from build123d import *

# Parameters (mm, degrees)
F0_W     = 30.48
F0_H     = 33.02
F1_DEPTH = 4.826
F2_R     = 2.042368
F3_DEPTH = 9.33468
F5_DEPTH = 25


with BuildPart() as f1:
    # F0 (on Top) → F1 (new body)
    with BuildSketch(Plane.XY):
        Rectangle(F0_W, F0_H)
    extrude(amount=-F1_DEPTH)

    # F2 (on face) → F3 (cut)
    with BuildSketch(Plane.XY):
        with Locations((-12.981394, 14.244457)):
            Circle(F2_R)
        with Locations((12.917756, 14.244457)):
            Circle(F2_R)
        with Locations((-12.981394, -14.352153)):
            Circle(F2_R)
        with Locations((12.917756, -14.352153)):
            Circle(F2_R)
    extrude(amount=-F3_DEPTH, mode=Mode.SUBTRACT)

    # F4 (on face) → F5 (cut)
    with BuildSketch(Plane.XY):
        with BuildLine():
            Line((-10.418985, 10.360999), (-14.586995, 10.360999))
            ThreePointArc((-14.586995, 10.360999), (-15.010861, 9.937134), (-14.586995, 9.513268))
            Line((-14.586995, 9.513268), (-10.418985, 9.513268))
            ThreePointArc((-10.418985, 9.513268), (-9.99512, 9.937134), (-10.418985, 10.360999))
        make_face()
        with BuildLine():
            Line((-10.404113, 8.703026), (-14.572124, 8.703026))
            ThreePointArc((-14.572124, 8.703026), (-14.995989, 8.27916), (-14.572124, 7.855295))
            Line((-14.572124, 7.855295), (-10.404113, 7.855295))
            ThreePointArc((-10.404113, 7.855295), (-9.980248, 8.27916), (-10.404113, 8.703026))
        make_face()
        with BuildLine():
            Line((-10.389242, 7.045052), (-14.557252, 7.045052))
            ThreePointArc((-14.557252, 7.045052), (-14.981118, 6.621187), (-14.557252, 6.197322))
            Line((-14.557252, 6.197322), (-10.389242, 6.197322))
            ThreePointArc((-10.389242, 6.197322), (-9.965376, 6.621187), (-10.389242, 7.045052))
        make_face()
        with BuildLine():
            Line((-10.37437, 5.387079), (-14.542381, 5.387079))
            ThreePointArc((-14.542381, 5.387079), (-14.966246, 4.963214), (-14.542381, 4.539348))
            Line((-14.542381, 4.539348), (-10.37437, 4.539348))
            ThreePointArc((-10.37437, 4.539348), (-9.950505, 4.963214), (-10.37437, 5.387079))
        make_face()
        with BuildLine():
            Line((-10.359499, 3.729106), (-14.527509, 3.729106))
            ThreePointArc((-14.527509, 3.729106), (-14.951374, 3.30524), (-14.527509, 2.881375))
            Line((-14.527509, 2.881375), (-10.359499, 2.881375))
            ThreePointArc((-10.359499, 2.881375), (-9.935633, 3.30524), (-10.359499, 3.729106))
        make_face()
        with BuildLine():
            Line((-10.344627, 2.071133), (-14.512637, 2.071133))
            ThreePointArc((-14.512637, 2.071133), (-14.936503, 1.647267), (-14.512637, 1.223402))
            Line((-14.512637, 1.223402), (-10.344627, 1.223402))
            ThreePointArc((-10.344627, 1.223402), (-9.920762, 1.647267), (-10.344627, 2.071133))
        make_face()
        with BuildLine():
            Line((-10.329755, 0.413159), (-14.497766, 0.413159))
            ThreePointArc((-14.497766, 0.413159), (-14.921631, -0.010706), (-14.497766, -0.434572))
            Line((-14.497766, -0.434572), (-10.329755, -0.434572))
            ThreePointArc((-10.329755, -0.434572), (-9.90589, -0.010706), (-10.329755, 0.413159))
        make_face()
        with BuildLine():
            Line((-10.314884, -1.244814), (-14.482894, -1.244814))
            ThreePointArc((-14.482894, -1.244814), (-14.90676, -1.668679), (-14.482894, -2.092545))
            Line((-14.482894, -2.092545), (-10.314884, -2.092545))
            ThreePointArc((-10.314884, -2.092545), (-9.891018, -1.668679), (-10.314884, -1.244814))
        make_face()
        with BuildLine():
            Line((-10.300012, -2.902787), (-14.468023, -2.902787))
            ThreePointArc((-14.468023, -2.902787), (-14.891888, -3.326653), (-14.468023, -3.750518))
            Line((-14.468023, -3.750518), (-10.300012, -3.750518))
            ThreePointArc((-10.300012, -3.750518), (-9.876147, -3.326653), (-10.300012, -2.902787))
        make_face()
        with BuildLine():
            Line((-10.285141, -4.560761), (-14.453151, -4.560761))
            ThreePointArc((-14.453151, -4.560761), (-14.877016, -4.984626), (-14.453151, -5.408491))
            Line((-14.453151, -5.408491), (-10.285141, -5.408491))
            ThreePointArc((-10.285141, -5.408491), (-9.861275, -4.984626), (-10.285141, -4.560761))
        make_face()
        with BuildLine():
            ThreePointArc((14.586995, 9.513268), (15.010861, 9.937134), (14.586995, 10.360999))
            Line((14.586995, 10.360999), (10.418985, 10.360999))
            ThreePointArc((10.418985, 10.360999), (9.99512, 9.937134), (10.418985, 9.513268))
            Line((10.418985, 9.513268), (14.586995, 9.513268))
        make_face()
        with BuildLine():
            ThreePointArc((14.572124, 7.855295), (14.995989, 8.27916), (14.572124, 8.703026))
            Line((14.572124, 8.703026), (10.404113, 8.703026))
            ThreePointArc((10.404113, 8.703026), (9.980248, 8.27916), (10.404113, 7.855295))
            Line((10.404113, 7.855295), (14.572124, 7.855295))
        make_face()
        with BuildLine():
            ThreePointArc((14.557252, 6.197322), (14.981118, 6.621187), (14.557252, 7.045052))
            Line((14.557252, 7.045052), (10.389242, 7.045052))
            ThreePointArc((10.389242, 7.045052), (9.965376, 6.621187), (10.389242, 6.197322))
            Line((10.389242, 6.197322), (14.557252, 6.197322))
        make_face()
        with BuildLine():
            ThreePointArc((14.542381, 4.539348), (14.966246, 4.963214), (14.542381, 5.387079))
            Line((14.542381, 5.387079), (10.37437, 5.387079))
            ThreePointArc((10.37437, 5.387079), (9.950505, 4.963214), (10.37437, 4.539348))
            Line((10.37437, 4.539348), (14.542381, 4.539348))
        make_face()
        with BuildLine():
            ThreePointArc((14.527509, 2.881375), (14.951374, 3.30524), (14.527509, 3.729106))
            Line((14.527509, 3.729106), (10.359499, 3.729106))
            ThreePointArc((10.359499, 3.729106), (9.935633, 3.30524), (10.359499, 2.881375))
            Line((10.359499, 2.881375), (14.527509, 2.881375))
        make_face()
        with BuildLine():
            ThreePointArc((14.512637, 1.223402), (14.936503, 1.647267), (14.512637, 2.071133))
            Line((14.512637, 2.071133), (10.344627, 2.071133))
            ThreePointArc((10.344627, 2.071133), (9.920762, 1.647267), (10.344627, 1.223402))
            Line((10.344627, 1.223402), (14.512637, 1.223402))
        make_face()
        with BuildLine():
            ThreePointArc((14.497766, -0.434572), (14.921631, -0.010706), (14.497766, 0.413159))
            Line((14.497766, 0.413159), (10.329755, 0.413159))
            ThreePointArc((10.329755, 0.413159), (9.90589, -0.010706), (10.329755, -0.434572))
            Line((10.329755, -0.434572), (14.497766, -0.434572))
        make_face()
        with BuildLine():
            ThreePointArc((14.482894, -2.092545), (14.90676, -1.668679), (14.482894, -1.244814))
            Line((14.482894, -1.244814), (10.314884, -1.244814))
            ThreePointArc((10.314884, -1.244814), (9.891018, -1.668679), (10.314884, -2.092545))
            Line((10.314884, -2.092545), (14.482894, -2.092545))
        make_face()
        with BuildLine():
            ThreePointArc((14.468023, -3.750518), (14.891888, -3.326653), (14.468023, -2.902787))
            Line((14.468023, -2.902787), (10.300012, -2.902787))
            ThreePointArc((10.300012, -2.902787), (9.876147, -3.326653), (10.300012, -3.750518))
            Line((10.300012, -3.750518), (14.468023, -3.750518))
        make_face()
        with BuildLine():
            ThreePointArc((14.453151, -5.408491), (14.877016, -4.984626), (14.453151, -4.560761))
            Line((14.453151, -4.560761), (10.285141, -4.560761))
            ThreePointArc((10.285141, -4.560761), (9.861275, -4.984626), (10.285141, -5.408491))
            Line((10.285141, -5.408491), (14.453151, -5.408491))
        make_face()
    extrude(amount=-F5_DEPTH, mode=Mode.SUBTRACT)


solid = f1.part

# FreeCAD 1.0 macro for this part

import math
import FreeCAD as App
import Part
import Sketcher
from FreeCAD import Vector
Q = App.Units.Quantity


def add_polygon(sketch, points):
    """Adds a closed chain of lines whose ends are joined by coincident constraints."""
    first, n = sketch.GeometryCount, len(points)
    for a, b in zip(points, points[1:] + points[:1]):
        sketch.addGeometry(Part.LineSegment(App.Vector(*a, 0), App.Vector(*b, 0)), False)
    for i in range(n):
        sketch.addConstraint(Sketcher.Constraint("Coincident", first + i, 2, first + (i + 1) % n, 1))

doc = App.newDocument("Part")
body = doc.addObject("PartDesign::Body", "Body")

sketch1 = body.newObject("Sketcher::SketchObject", "Sketch")
sketch1.AttachmentSupport = (doc.getObject("XY_Plane"), [""])
sketch1.MapMode = "FlatFace"
add_polygon(sketch1, [(-15, 17), (-15, -17), (15, -17), (15, 17)])
sketch1.addConstraint(Sketcher.Constraint("Vertical", 0))
sketch1.addConstraint(Sketcher.Constraint("Horizontal", 1))
sketch1.addConstraint(Sketcher.Constraint("Vertical", 2))
sketch1.addConstraint(Sketcher.Constraint("Horizontal", 3))
sketch1.addConstraint(Sketcher.Constraint("Symmetric", 0, 2, 2, 2, -1, 1))
sketch1.addConstraint(Sketcher.Constraint("DistanceX", 1, 1, 1, 2, Q("1.2 in")))
sketch1.addConstraint(Sketcher.Constraint("DistanceY", 0, 2, 0, 1, Q("1.3 in")))
pad1 = body.newObject("PartDesign::Pad", "Pad")
pad1.Profile = sketch1
pad1.Length = Q("0.19 in")
pad1.Reversed = True

sketch2 = body.newObject("Sketcher::SketchObject", "Sketch001")
sketch2.AttachmentSupport = (doc.getObject("XY_Plane"), [""])
sketch2.MapMode = "FlatFace"
sketch2.addGeometry(Part.Circle(Vector(-13, 14.2, 0), Vector(0, 0, 1), 2), False)
sketch2.addGeometry(Part.Circle(Vector(12.9, 14.2, 0), Vector(0, 0, 1), 2), False)
sketch2.addGeometry(Part.Circle(Vector(-13, -14.4, 0), Vector(0, 0, 1), 2), False)
sketch2.addGeometry(Part.Circle(Vector(12.9, -14.4, 0), Vector(0, 0, 1), 2), False)
sketch2.addConstraint(Sketcher.Constraint("Equal", 0, 1))
sketch2.addConstraint(Sketcher.Constraint("Equal", 1, 2))
sketch2.addConstraint(Sketcher.Constraint("Equal", 2, 3))
sketch2.addConstraint(Sketcher.Constraint("Horizontal", 0, 3, 1, 3))
sketch2.addConstraint(Sketcher.Constraint("Horizontal", 2, 3, 3, 3))
sketch2.addConstraint(Sketcher.Constraint("Vertical", 0, 3, 2, 3))
sketch2.addConstraint(Sketcher.Constraint("Vertical", 1, 3, 3, 3))
sketch2.addConstraint(Sketcher.Constraint("Diameter", 0, 4.084736))
sketch2.addConstraint(Sketcher.Constraint("DistanceX", 0, 3, 1, 3, 25.89915))
sketch2.addConstraint(Sketcher.Constraint("DistanceY", 2, 3, 0, 3, 28.59661))
sketch2.addConstraint(Sketcher.Constraint("DistanceX", 0, 3, -1, 1, 12.981394))
sketch2.addConstraint(Sketcher.Constraint("DistanceY", -1, 1, 0, 3, 14.244457))
pocket1 = body.newObject("PartDesign::Pocket", "Pocket")
pocket1.Profile = sketch2
pocket1.Length = 9.33468

sketch3 = body.newObject("Sketcher::SketchObject", "Sketch002")
sketch3.AttachmentSupport = (doc.getObject("XY_Plane"), [""])
sketch3.MapMode = "FlatFace"
sketch3.addGeometry(Part.LineSegment(Vector(-10.42, 10.36, 0), Vector(-14.59, 10.36, 0)), False)
sketch3.addGeometry(Part.ArcOfCircle(Part.Circle(Vector(-14.59, 9.94, 0), Vector(0, 0, 1), 0.42), math.radians(90), math.radians(270)), False)
sketch3.addGeometry(Part.LineSegment(Vector(-14.59, 9.51, 0), Vector(-10.42, 9.51, 0)), False)
sketch3.addGeometry(Part.ArcOfCircle(Part.Circle(Vector(-10.42, 9.94, 0), Vector(0, 0, 1), 0.42), math.radians(-90), math.radians(90)), False)
sketch3.addGeometry(Part.LineSegment(Vector(-10.4, 8.7, 0), Vector(-14.57, 8.7, 0)), False)
sketch3.addGeometry(Part.ArcOfCircle(Part.Circle(Vector(-14.57, 8.28, 0), Vector(0, 0, 1), 0.42), math.radians(90), math.radians(270)), False)
sketch3.addGeometry(Part.LineSegment(Vector(-14.57, 7.86, 0), Vector(-10.4, 7.86, 0)), False)
sketch3.addGeometry(Part.ArcOfCircle(Part.Circle(Vector(-10.4, 8.28, 0), Vector(0, 0, 1), 0.42), math.radians(-90), math.radians(90)), False)
sketch3.addGeometry(Part.LineSegment(Vector(-10.39, 7.05, 0), Vector(-14.56, 7.05, 0)), False)
sketch3.addGeometry(Part.ArcOfCircle(Part.Circle(Vector(-14.56, 6.62, 0), Vector(0, 0, 1), 0.42), math.radians(90), math.radians(270)), False)
sketch3.addGeometry(Part.LineSegment(Vector(-14.56, 6.2, 0), Vector(-10.39, 6.2, 0)), False)
sketch3.addGeometry(Part.ArcOfCircle(Part.Circle(Vector(-10.39, 6.62, 0), Vector(0, 0, 1), 0.42), math.radians(-90), math.radians(90)), False)
sketch3.addGeometry(Part.LineSegment(Vector(-10.37, 5.39, 0), Vector(-14.54, 5.39, 0)), False)
sketch3.addGeometry(Part.ArcOfCircle(Part.Circle(Vector(-14.54, 4.96, 0), Vector(0, 0, 1), 0.42), math.radians(90), math.radians(270)), False)
sketch3.addGeometry(Part.LineSegment(Vector(-14.54, 4.54, 0), Vector(-10.37, 4.54, 0)), False)
sketch3.addGeometry(Part.ArcOfCircle(Part.Circle(Vector(-10.37, 4.96, 0), Vector(0, 0, 1), 0.42), math.radians(-90), math.radians(90)), False)
sketch3.addGeometry(Part.LineSegment(Vector(-10.36, 3.73, 0), Vector(-14.53, 3.73, 0)), False)
sketch3.addGeometry(Part.ArcOfCircle(Part.Circle(Vector(-14.53, 3.31, 0), Vector(0, 0, 1), 0.42), math.radians(90), math.radians(270)), False)
sketch3.addGeometry(Part.LineSegment(Vector(-14.53, 2.88, 0), Vector(-10.36, 2.88, 0)), False)
sketch3.addGeometry(Part.ArcOfCircle(Part.Circle(Vector(-10.36, 3.31, 0), Vector(0, 0, 1), 0.42), math.radians(-90), math.radians(90)), False)
sketch3.addGeometry(Part.LineSegment(Vector(-10.34, 2.07, 0), Vector(-14.51, 2.07, 0)), False)
sketch3.addGeometry(Part.ArcOfCircle(Part.Circle(Vector(-14.51, 1.65, 0), Vector(0, 0, 1), 0.42), math.radians(90), math.radians(270)), False)
sketch3.addGeometry(Part.LineSegment(Vector(-14.51, 1.22, 0), Vector(-10.34, 1.22, 0)), False)
sketch3.addGeometry(Part.ArcOfCircle(Part.Circle(Vector(-10.34, 1.65, 0), Vector(0, 0, 1), 0.42), math.radians(-90), math.radians(90)), False)
sketch3.addGeometry(Part.LineSegment(Vector(-10.33, 0.41, 0), Vector(-14.5, 0.41, 0)), False)
sketch3.addGeometry(Part.ArcOfCircle(Part.Circle(Vector(-14.5, -0.01, 0), Vector(0, 0, 1), 0.42), math.radians(90), math.radians(270)), False)
sketch3.addGeometry(Part.LineSegment(Vector(-14.5, -0.43, 0), Vector(-10.33, -0.43, 0)), False)
sketch3.addGeometry(Part.ArcOfCircle(Part.Circle(Vector(-10.33, -0.01, 0), Vector(0, 0, 1), 0.42), math.radians(-90), math.radians(90)), False)
sketch3.addGeometry(Part.LineSegment(Vector(-10.31, -1.24, 0), Vector(-14.48, -1.24, 0)), False)
sketch3.addGeometry(Part.ArcOfCircle(Part.Circle(Vector(-14.48, -1.67, 0), Vector(0, 0, 1), 0.42), math.radians(90), math.radians(270)), False)
sketch3.addGeometry(Part.LineSegment(Vector(-14.48, -2.09, 0), Vector(-10.31, -2.09, 0)), False)
sketch3.addGeometry(Part.ArcOfCircle(Part.Circle(Vector(-10.31, -1.67, 0), Vector(0, 0, 1), 0.42), math.radians(-90), math.radians(90)), False)
sketch3.addGeometry(Part.LineSegment(Vector(-10.3, -2.9, 0), Vector(-14.47, -2.9, 0)), False)
sketch3.addGeometry(Part.ArcOfCircle(Part.Circle(Vector(-14.47, -3.33, 0), Vector(0, 0, 1), 0.42), math.radians(90), math.radians(270)), False)
sketch3.addGeometry(Part.LineSegment(Vector(-14.47, -3.75, 0), Vector(-10.3, -3.75, 0)), False)
sketch3.addGeometry(Part.ArcOfCircle(Part.Circle(Vector(-10.3, -3.33, 0), Vector(0, 0, 1), 0.42), math.radians(-90), math.radians(90)), False)
sketch3.addGeometry(Part.LineSegment(Vector(-10.29, -4.56, 0), Vector(-14.45, -4.56, 0)), False)
sketch3.addGeometry(Part.ArcOfCircle(Part.Circle(Vector(-14.45, -4.98, 0), Vector(0, 0, 1), 0.42), math.radians(90), math.radians(270)), False)
sketch3.addGeometry(Part.LineSegment(Vector(-14.45, -5.41, 0), Vector(-10.29, -5.41, 0)), False)
sketch3.addGeometry(Part.ArcOfCircle(Part.Circle(Vector(-10.29, -4.98, 0), Vector(0, 0, 1), 0.42), math.radians(-90), math.radians(90)), False)
sketch3.addGeometry(Part.ArcOfCircle(Part.Circle(Vector(14.59, 9.94, 0), Vector(0, 0, 1), 0.42), math.radians(-90), math.radians(90)), False)
sketch3.addGeometry(Part.LineSegment(Vector(14.59, 10.36, 0), Vector(10.42, 10.36, 0)), False)
sketch3.addGeometry(Part.ArcOfCircle(Part.Circle(Vector(10.42, 9.94, 0), Vector(0, 0, 1), 0.42), math.radians(90), math.radians(270)), False)
sketch3.addGeometry(Part.LineSegment(Vector(10.42, 9.51, 0), Vector(14.59, 9.51, 0)), False)
sketch3.addGeometry(Part.ArcOfCircle(Part.Circle(Vector(14.57, 8.28, 0), Vector(0, 0, 1), 0.42), math.radians(-90), math.radians(90)), False)
sketch3.addGeometry(Part.LineSegment(Vector(14.57, 8.7, 0), Vector(10.4, 8.7, 0)), False)
sketch3.addGeometry(Part.ArcOfCircle(Part.Circle(Vector(10.4, 8.28, 0), Vector(0, 0, 1), 0.42), math.radians(90), math.radians(270)), False)
sketch3.addGeometry(Part.LineSegment(Vector(10.4, 7.86, 0), Vector(14.57, 7.86, 0)), False)
sketch3.addGeometry(Part.ArcOfCircle(Part.Circle(Vector(14.56, 6.62, 0), Vector(0, 0, 1), 0.42), math.radians(-90), math.radians(90)), False)
sketch3.addGeometry(Part.LineSegment(Vector(14.56, 7.05, 0), Vector(10.39, 7.05, 0)), False)
sketch3.addGeometry(Part.ArcOfCircle(Part.Circle(Vector(10.39, 6.62, 0), Vector(0, 0, 1), 0.42), math.radians(90), math.radians(270)), False)
sketch3.addGeometry(Part.LineSegment(Vector(10.39, 6.2, 0), Vector(14.56, 6.2, 0)), False)
sketch3.addGeometry(Part.ArcOfCircle(Part.Circle(Vector(14.54, 4.96, 0), Vector(0, 0, 1), 0.42), math.radians(-90), math.radians(90)), False)
sketch3.addGeometry(Part.LineSegment(Vector(14.54, 5.39, 0), Vector(10.37, 5.39, 0)), False)
sketch3.addGeometry(Part.ArcOfCircle(Part.Circle(Vector(10.37, 4.96, 0), Vector(0, 0, 1), 0.42), math.radians(90), math.radians(270)), False)
sketch3.addGeometry(Part.LineSegment(Vector(10.37, 4.54, 0), Vector(14.54, 4.54, 0)), False)
sketch3.addGeometry(Part.ArcOfCircle(Part.Circle(Vector(14.53, 3.31, 0), Vector(0, 0, 1), 0.42), math.radians(-90), math.radians(90)), False)
sketch3.addGeometry(Part.LineSegment(Vector(14.53, 3.73, 0), Vector(10.36, 3.73, 0)), False)
sketch3.addGeometry(Part.ArcOfCircle(Part.Circle(Vector(10.36, 3.31, 0), Vector(0, 0, 1), 0.42), math.radians(90), math.radians(270)), False)
sketch3.addGeometry(Part.LineSegment(Vector(10.36, 2.88, 0), Vector(14.53, 2.88, 0)), False)
sketch3.addGeometry(Part.ArcOfCircle(Part.Circle(Vector(14.51, 1.65, 0), Vector(0, 0, 1), 0.42), math.radians(-90), math.radians(90)), False)
sketch3.addGeometry(Part.LineSegment(Vector(14.51, 2.07, 0), Vector(10.34, 2.07, 0)), False)
sketch3.addGeometry(Part.ArcOfCircle(Part.Circle(Vector(10.34, 1.65, 0), Vector(0, 0, 1), 0.42), math.radians(90), math.radians(270)), False)
sketch3.addGeometry(Part.LineSegment(Vector(10.34, 1.22, 0), Vector(14.51, 1.22, 0)), False)
sketch3.addGeometry(Part.ArcOfCircle(Part.Circle(Vector(14.5, -0.01, 0), Vector(0, 0, 1), 0.42), math.radians(-90), math.radians(90)), False)
sketch3.addGeometry(Part.LineSegment(Vector(14.5, 0.41, 0), Vector(10.33, 0.41, 0)), False)
sketch3.addGeometry(Part.ArcOfCircle(Part.Circle(Vector(10.33, -0.01, 0), Vector(0, 0, 1), 0.42), math.radians(90), math.radians(270)), False)
sketch3.addGeometry(Part.LineSegment(Vector(10.33, -0.43, 0), Vector(14.5, -0.43, 0)), False)
sketch3.addGeometry(Part.ArcOfCircle(Part.Circle(Vector(14.48, -1.67, 0), Vector(0, 0, 1), 0.42), math.radians(-90), math.radians(90)), False)
sketch3.addGeometry(Part.LineSegment(Vector(14.48, -1.24, 0), Vector(10.31, -1.24, 0)), False)
sketch3.addGeometry(Part.ArcOfCircle(Part.Circle(Vector(10.31, -1.67, 0), Vector(0, 0, 1), 0.42), math.radians(90), math.radians(270)), False)
sketch3.addGeometry(Part.LineSegment(Vector(10.31, -2.09, 0), Vector(14.48, -2.09, 0)), False)
sketch3.addGeometry(Part.ArcOfCircle(Part.Circle(Vector(14.47, -3.33, 0), Vector(0, 0, 1), 0.42), math.radians(-90), math.radians(90)), False)
sketch3.addGeometry(Part.LineSegment(Vector(14.47, -2.9, 0), Vector(10.3, -2.9, 0)), False)
sketch3.addGeometry(Part.ArcOfCircle(Part.Circle(Vector(10.3, -3.33, 0), Vector(0, 0, 1), 0.42), math.radians(90), math.radians(270)), False)
sketch3.addGeometry(Part.LineSegment(Vector(10.3, -3.75, 0), Vector(14.47, -3.75, 0)), False)
sketch3.addGeometry(Part.ArcOfCircle(Part.Circle(Vector(14.45, -4.98, 0), Vector(0, 0, 1), 0.42), math.radians(-90), math.radians(90)), False)
sketch3.addGeometry(Part.LineSegment(Vector(14.45, -4.56, 0), Vector(10.29, -4.56, 0)), False)
sketch3.addGeometry(Part.ArcOfCircle(Part.Circle(Vector(10.29, -4.98, 0), Vector(0, 0, 1), 0.42), math.radians(90), math.radians(270)), False)
sketch3.addGeometry(Part.LineSegment(Vector(10.29, -5.41, 0), Vector(14.45, -5.41, 0)), False)
sketch3.addConstraint(Sketcher.Constraint("Tangent", 0, 2, 1, 1))
sketch3.addConstraint(Sketcher.Constraint("Tangent", 1, 2, 2, 1))
sketch3.addConstraint(Sketcher.Constraint("Tangent", 2, 2, 3, 1))
sketch3.addConstraint(Sketcher.Constraint("Tangent", 3, 2, 0, 1))
sketch3.addConstraint(Sketcher.Constraint("Tangent", 4, 2, 5, 1))
sketch3.addConstraint(Sketcher.Constraint("Tangent", 5, 2, 6, 1))
sketch3.addConstraint(Sketcher.Constraint("Tangent", 6, 2, 7, 1))
sketch3.addConstraint(Sketcher.Constraint("Tangent", 7, 2, 4, 1))
sketch3.addConstraint(Sketcher.Constraint("Coincident", 8, 2, 9, 1))
sketch3.addConstraint(Sketcher.Constraint("Coincident", 9, 2, 10, 1))
sketch3.addConstraint(Sketcher.Constraint("Coincident", 10, 2, 11, 1))
sketch3.addConstraint(Sketcher.Constraint("Coincident", 11, 2, 8, 1))
sketch3.addConstraint(Sketcher.Constraint("Tangent", 12, 2, 13, 1))
sketch3.addConstraint(Sketcher.Constraint("Tangent", 13, 2, 14, 1))
sketch3.addConstraint(Sketcher.Constraint("Tangent", 14, 2, 15, 1))
sketch3.addConstraint(Sketcher.Constraint("Tangent", 15, 2, 12, 1))
sketch3.addConstraint(Sketcher.Constraint("Tangent", 16, 2, 17, 1))
sketch3.addConstraint(Sketcher.Constraint("Tangent", 17, 2, 18, 1))
sketch3.addConstraint(Sketcher.Constraint("Tangent", 18, 2, 19, 1))
sketch3.addConstraint(Sketcher.Constraint("Tangent", 19, 2, 16, 1))
sketch3.addConstraint(Sketcher.Constraint("Tangent", 20, 2, 21, 1))
sketch3.addConstraint(Sketcher.Constraint("Tangent", 21, 2, 22, 1))
sketch3.addConstraint(Sketcher.Constraint("Tangent", 22, 2, 23, 1))
sketch3.addConstraint(Sketcher.Constraint("Tangent", 23, 2, 20, 1))
sketch3.addConstraint(Sketcher.Constraint("Tangent", 24, 2, 25, 1))
sketch3.addConstraint(Sketcher.Constraint("Tangent", 25, 2, 26, 1))
sketch3.addConstraint(Sketcher.Constraint("Tangent", 26, 2, 27, 1))
sketch3.addConstraint(Sketcher.Constraint("Tangent", 27, 2, 24, 1))
sketch3.addConstraint(Sketcher.Constraint("Tangent", 28, 2, 29, 1))
sketch3.addConstraint(Sketcher.Constraint("Tangent", 29, 2, 30, 1))
sketch3.addConstraint(Sketcher.Constraint("Tangent", 30, 2, 31, 1))
sketch3.addConstraint(Sketcher.Constraint("Tangent", 31, 2, 28, 1))
sketch3.addConstraint(Sketcher.Constraint("Tangent", 32, 2, 33, 1))
sketch3.addConstraint(Sketcher.Constraint("Tangent", 33, 2, 34, 1))
sketch3.addConstraint(Sketcher.Constraint("Tangent", 34, 2, 35, 1))
sketch3.addConstraint(Sketcher.Constraint("Tangent", 35, 2, 32, 1))
sketch3.addConstraint(Sketcher.Constraint("Tangent", 36, 2, 37, 1))
sketch3.addConstraint(Sketcher.Constraint("Tangent", 37, 2, 38, 1))
sketch3.addConstraint(Sketcher.Constraint("Coincident", 38, 2, 39, 1))
sketch3.addConstraint(Sketcher.Constraint("Coincident", 39, 2, 36, 1))
sketch3.addConstraint(Sketcher.Constraint("Tangent", 40, 2, 41, 1))
sketch3.addConstraint(Sketcher.Constraint("Tangent", 41, 2, 42, 1))
sketch3.addConstraint(Sketcher.Constraint("Tangent", 42, 2, 43, 1))
sketch3.addConstraint(Sketcher.Constraint("Tangent", 43, 2, 40, 1))
sketch3.addConstraint(Sketcher.Constraint("Tangent", 44, 2, 45, 1))
sketch3.addConstraint(Sketcher.Constraint("Tangent", 45, 2, 46, 1))
sketch3.addConstraint(Sketcher.Constraint("Tangent", 46, 2, 47, 1))
sketch3.addConstraint(Sketcher.Constraint("Tangent", 47, 2, 44, 1))
sketch3.addConstraint(Sketcher.Constraint("Coincident", 48, 2, 49, 1))
sketch3.addConstraint(Sketcher.Constraint("Coincident", 49, 2, 50, 1))
sketch3.addConstraint(Sketcher.Constraint("Coincident", 50, 2, 51, 1))
sketch3.addConstraint(Sketcher.Constraint("Coincident", 51, 2, 48, 1))
sketch3.addConstraint(Sketcher.Constraint("Tangent", 52, 2, 53, 1))
sketch3.addConstraint(Sketcher.Constraint("Tangent", 53, 2, 54, 1))
sketch3.addConstraint(Sketcher.Constraint("Tangent", 54, 2, 55, 1))
sketch3.addConstraint(Sketcher.Constraint("Tangent", 55, 2, 52, 1))
sketch3.addConstraint(Sketcher.Constraint("Tangent", 56, 2, 57, 1))
sketch3.addConstraint(Sketcher.Constraint("Tangent", 57, 2, 58, 1))
sketch3.addConstraint(Sketcher.Constraint("Tangent", 58, 2, 59, 1))
sketch3.addConstraint(Sketcher.Constraint("Tangent", 59, 2, 56, 1))
sketch3.addConstraint(Sketcher.Constraint("Tangent", 60, 2, 61, 1))
sketch3.addConstraint(Sketcher.Constraint("Tangent", 61, 2, 62, 1))
sketch3.addConstraint(Sketcher.Constraint("Tangent", 62, 2, 63, 1))
sketch3.addConstraint(Sketcher.Constraint("Tangent", 63, 2, 60, 1))
sketch3.addConstraint(Sketcher.Constraint("Tangent", 64, 2, 65, 1))
sketch3.addConstraint(Sketcher.Constraint("Tangent", 65, 2, 66, 1))
sketch3.addConstraint(Sketcher.Constraint("Tangent", 66, 2, 67, 1))
sketch3.addConstraint(Sketcher.Constraint("Tangent", 67, 2, 64, 1))
sketch3.addConstraint(Sketcher.Constraint("Tangent", 68, 2, 69, 1))
sketch3.addConstraint(Sketcher.Constraint("Tangent", 69, 2, 70, 1))
sketch3.addConstraint(Sketcher.Constraint("Tangent", 70, 2, 71, 1))
sketch3.addConstraint(Sketcher.Constraint("Tangent", 71, 2, 68, 1))
sketch3.addConstraint(Sketcher.Constraint("Tangent", 72, 2, 73, 1))
sketch3.addConstraint(Sketcher.Constraint("Tangent", 73, 2, 74, 1))
sketch3.addConstraint(Sketcher.Constraint("Tangent", 74, 2, 75, 1))
sketch3.addConstraint(Sketcher.Constraint("Tangent", 75, 2, 72, 1))
sketch3.addConstraint(Sketcher.Constraint("Tangent", 76, 2, 77, 1))
sketch3.addConstraint(Sketcher.Constraint("Coincident", 77, 2, 78, 1))
sketch3.addConstraint(Sketcher.Constraint("Coincident", 78, 2, 79, 1))
sketch3.addConstraint(Sketcher.Constraint("Tangent", 79, 2, 76, 1))
sketch3.addConstraint(Sketcher.Constraint("Horizontal", 0))
sketch3.addConstraint(Sketcher.Constraint("Horizontal", 2))
sketch3.addConstraint(Sketcher.Constraint("Horizontal", 4))
sketch3.addConstraint(Sketcher.Constraint("Horizontal", 6))
sketch3.addConstraint(Sketcher.Constraint("Horizontal", 8))
sketch3.addConstraint(Sketcher.Constraint("Horizontal", 10))
sketch3.addConstraint(Sketcher.Constraint("Horizontal", 12))
sketch3.addConstraint(Sketcher.Constraint("Horizontal", 14))
sketch3.addConstraint(Sketcher.Constraint("Horizontal", 16))
sketch3.addConstraint(Sketcher.Constraint("Horizontal", 18))
sketch3.addConstraint(Sketcher.Constraint("Horizontal", 20))
sketch3.addConstraint(Sketcher.Constraint("Horizontal", 22))
sketch3.addConstraint(Sketcher.Constraint("Horizontal", 24))
sketch3.addConstraint(Sketcher.Constraint("Horizontal", 26))
sketch3.addConstraint(Sketcher.Constraint("Horizontal", 28))
sketch3.addConstraint(Sketcher.Constraint("Horizontal", 30))
sketch3.addConstraint(Sketcher.Constraint("Horizontal", 32))
sketch3.addConstraint(Sketcher.Constraint("Horizontal", 34))
sketch3.addConstraint(Sketcher.Constraint("Horizontal", 36))
sketch3.addConstraint(Sketcher.Constraint("Horizontal", 38))
sketch3.addConstraint(Sketcher.Constraint("Horizontal", 41))
sketch3.addConstraint(Sketcher.Constraint("Horizontal", 43))
sketch3.addConstraint(Sketcher.Constraint("Horizontal", 45))
sketch3.addConstraint(Sketcher.Constraint("Horizontal", 47))
sketch3.addConstraint(Sketcher.Constraint("Horizontal", 49))
sketch3.addConstraint(Sketcher.Constraint("Horizontal", 51))
sketch3.addConstraint(Sketcher.Constraint("Horizontal", 53))
sketch3.addConstraint(Sketcher.Constraint("Horizontal", 55))
sketch3.addConstraint(Sketcher.Constraint("Horizontal", 57))
sketch3.addConstraint(Sketcher.Constraint("Horizontal", 59))
sketch3.addConstraint(Sketcher.Constraint("Horizontal", 61))
sketch3.addConstraint(Sketcher.Constraint("Horizontal", 63))
sketch3.addConstraint(Sketcher.Constraint("Horizontal", 65))
sketch3.addConstraint(Sketcher.Constraint("Horizontal", 67))
sketch3.addConstraint(Sketcher.Constraint("Horizontal", 69))
sketch3.addConstraint(Sketcher.Constraint("Horizontal", 71))
sketch3.addConstraint(Sketcher.Constraint("Horizontal", 73))
sketch3.addConstraint(Sketcher.Constraint("Horizontal", 75))
sketch3.addConstraint(Sketcher.Constraint("Horizontal", 77))
sketch3.addConstraint(Sketcher.Constraint("Horizontal", 79))
sketch3.addConstraint(Sketcher.Constraint("Equal", 3, 5))
sketch3.addConstraint(Sketcher.Constraint("Equal", 7, 9))
sketch3.addConstraint(Sketcher.Constraint("Equal", 11, 13))
sketch3.addConstraint(Sketcher.Constraint("Equal", 15, 17))
sketch3.addConstraint(Sketcher.Constraint("Equal", 19, 21))
sketch3.addConstraint(Sketcher.Constraint("Equal", 23, 25))
sketch3.addConstraint(Sketcher.Constraint("Equal", 27, 29))
sketch3.addConstraint(Sketcher.Constraint("Equal", 31, 33))
sketch3.addConstraint(Sketcher.Constraint("Equal", 35, 37))
sketch3.addConstraint(Sketcher.Constraint("Equal", 39, 40))
sketch3.addConstraint(Sketcher.Constraint("Equal", 42, 44))
sketch3.addConstraint(Sketcher.Constraint("Equal", 46, 48))
sketch3.addConstraint(Sketcher.Constraint("Equal", 50, 52))
sketch3.addConstraint(Sketcher.Constraint("Equal", 54, 56))
sketch3.addConstraint(Sketcher.Constraint("Equal", 58, 60))
sketch3.addConstraint(Sketcher.Constraint("Equal", 62, 64))
sketch3.addConstraint(Sketcher.Constraint("Equal", 66, 68))
sketch3.addConstraint(Sketcher.Constraint("Equal", 70, 72))
sketch3.addConstraint(Sketcher.Constraint("Equal", 74, 76))
sketch3.addConstraint(Sketcher.Constraint("Symmetric", 1, 3, 40, 3, -2))
sketch3.addConstraint(Sketcher.Constraint("Symmetric", 5, 3, 44, 3, -2))
sketch3.addConstraint(Sketcher.Constraint("Symmetric", 9, 3, 48, 3, -2))
sketch3.addConstraint(Sketcher.Constraint("Symmetric", 13, 3, 52, 3, -2))
sketch3.addConstraint(Sketcher.Constraint("Symmetric", 17, 3, 56, 3, -2))
sketch3.addConstraint(Sketcher.Constraint("Symmetric", 21, 3, 60, 3, -2))
sketch3.addConstraint(Sketcher.Constraint("Symmetric", 25, 3, 64, 3, -2))
sketch3.addConstraint(Sketcher.Constraint("Symmetric", 29, 3, 68, 3, -2))
sketch3.addConstraint(Sketcher.Constraint("Symmetric", 33, 3, 72, 3, -2))
sketch3.addConstraint(Sketcher.Constraint("Symmetric", 37, 3, 76, 3, -2))
sketch3.addConstraint(Sketcher.Constraint("Vertical", 9, 3, 8, 2))
sketch3.addConstraint(Sketcher.Constraint("Vertical", 8, 2, 9, 2))
sketch3.addConstraint(Sketcher.Constraint("Vertical", 11, 3, 10, 2))
sketch3.addConstraint(Sketcher.Constraint("Vertical", 10, 2, 11, 2))
sketch3.addConstraint(Sketcher.Constraint("Vertical", 39, 3, 38, 2))
sketch3.addConstraint(Sketcher.Constraint("Vertical", 38, 2, 39, 2))
sketch3.addConstraint(Sketcher.Constraint("Vertical", 50, 3, 49, 2))
sketch3.addConstraint(Sketcher.Constraint("Vertical", 49, 2, 50, 2))
sketch3.addConstraint(Sketcher.Constraint("Vertical", 48, 2, 51, 2))
sketch3.addConstraint(Sketcher.Constraint("Vertical", 78, 3, 77, 2))
sketch3.addConstraint(Sketcher.Constraint("Vertical", 77, 2, 78, 2))
sketch3.addConstraint(Sketcher.Constraint("Equal", 2, 4))
sketch3.addConstraint(Sketcher.Constraint("Equal", 6, 8))
sketch3.addConstraint(Sketcher.Constraint("Equal", 10, 12))
sketch3.addConstraint(Sketcher.Constraint("Equal", 14, 16))
sketch3.addConstraint(Sketcher.Constraint("Equal", 18, 20))
sketch3.addConstraint(Sketcher.Constraint("Equal", 22, 24))
sketch3.addConstraint(Sketcher.Constraint("Equal", 26, 28))
sketch3.addConstraint(Sketcher.Constraint("Equal", 30, 32))
sketch3.addConstraint(Sketcher.Constraint("Equal", 34, 36))
sketch3.addConstraint(Sketcher.Constraint("Equal", 38, 41))
sketch3.addConstraint(Sketcher.Constraint("Equal", 43, 45))
sketch3.addConstraint(Sketcher.Constraint("Equal", 47, 49))
sketch3.addConstraint(Sketcher.Constraint("Equal", 51, 53))
sketch3.addConstraint(Sketcher.Constraint("Equal", 55, 57))
sketch3.addConstraint(Sketcher.Constraint("Equal", 59, 61))
sketch3.addConstraint(Sketcher.Constraint("Equal", 63, 65))
sketch3.addConstraint(Sketcher.Constraint("Equal", 67, 69))
sketch3.addConstraint(Sketcher.Constraint("Equal", 71, 73))
sketch3.addConstraint(Sketcher.Constraint("Equal", 75, 77))
sketch3.addConstraint(Sketcher.Constraint("Radius", 1, 0.423866))
sketch3.addConstraint(Sketcher.Constraint("DistanceX", 0, 2, 0, 1, 4.16801))
sketch3.addConstraint(Sketcher.Constraint("DistanceX", 19, 3, -1, 1, 10.359499))
sketch3.addConstraint(Sketcher.Constraint("DistanceY", -1, 1, 0, 2, 10.360999))
sketch3.addConstraint(Sketcher.Constraint("DistanceY", -1, 1, 5, 3, 8.27916))
sketch3.addConstraint(Sketcher.Constraint("DistanceX", 11, 3, -1, 1, 10.389241))
sketch3.addConstraint(Sketcher.Constraint("DistanceX", 13, 3, -1, 1, 14.542381))
sketch3.addConstraint(Sketcher.Constraint("DistanceY", -1, 1, 17, 3, 3.305241))
sketch3.addConstraint(Sketcher.Constraint("DistanceY", 29, 3, -1, 1, 1.66868))
sketch3.addConstraint(Sketcher.Constraint("DistanceX", 37, 3, -1, 1, 14.453151))
sketch3.addConstraint(Sketcher.Constraint("DistanceX", -1, 1, 50, 3, 10.389241))
sketch3.addConstraint(Sketcher.Constraint("DistanceY", -1, 1, 10, 2, 6.197322))
sketch3.addConstraint(Sketcher.Constraint("DistanceY", -1, 1, 12, 2, 5.387079))
sketch3.addConstraint(Sketcher.Constraint("DistanceY", -1, 1, 24, 2, 0.413159))
sketch3.addConstraint(Sketcher.Constraint("DistanceY", 34, 2, -1, 1, 3.750518))
sketch3.addConstraint(Sketcher.Constraint("DistanceY", 36, 2, -1, 1, 4.560761))
sketch3.addConstraint(Sketcher.Constraint("DistanceX", 1, 3, -1, 1, 14.586996))
sketch3.addConstraint(Sketcher.Constraint("DistanceX", 5, 3, -1, 1, 14.572124))
sketch3.addConstraint(Sketcher.Constraint("DistanceX", 21, 3, -1, 1, 14.512638))
sketch3.addConstraint(Sketcher.Constraint("DistanceY", -1, 1, 21, 3, 1.647268))
sketch3.addConstraint(Sketcher.Constraint("DistanceX", 25, 3, -1, 1, 14.497765))
sketch3.addConstraint(Sketcher.Constraint("DistanceX", 29, 3, -1, 1, 14.482895))
sketch3.addConstraint(Sketcher.Constraint("DistanceX", 33, 3, -1, 1, 14.468023))
pocket2 = body.newObject("PartDesign::Pocket", "Pocket001")
pocket2.Profile = sketch3
pocket2.Length = 25

doc.recompute()
